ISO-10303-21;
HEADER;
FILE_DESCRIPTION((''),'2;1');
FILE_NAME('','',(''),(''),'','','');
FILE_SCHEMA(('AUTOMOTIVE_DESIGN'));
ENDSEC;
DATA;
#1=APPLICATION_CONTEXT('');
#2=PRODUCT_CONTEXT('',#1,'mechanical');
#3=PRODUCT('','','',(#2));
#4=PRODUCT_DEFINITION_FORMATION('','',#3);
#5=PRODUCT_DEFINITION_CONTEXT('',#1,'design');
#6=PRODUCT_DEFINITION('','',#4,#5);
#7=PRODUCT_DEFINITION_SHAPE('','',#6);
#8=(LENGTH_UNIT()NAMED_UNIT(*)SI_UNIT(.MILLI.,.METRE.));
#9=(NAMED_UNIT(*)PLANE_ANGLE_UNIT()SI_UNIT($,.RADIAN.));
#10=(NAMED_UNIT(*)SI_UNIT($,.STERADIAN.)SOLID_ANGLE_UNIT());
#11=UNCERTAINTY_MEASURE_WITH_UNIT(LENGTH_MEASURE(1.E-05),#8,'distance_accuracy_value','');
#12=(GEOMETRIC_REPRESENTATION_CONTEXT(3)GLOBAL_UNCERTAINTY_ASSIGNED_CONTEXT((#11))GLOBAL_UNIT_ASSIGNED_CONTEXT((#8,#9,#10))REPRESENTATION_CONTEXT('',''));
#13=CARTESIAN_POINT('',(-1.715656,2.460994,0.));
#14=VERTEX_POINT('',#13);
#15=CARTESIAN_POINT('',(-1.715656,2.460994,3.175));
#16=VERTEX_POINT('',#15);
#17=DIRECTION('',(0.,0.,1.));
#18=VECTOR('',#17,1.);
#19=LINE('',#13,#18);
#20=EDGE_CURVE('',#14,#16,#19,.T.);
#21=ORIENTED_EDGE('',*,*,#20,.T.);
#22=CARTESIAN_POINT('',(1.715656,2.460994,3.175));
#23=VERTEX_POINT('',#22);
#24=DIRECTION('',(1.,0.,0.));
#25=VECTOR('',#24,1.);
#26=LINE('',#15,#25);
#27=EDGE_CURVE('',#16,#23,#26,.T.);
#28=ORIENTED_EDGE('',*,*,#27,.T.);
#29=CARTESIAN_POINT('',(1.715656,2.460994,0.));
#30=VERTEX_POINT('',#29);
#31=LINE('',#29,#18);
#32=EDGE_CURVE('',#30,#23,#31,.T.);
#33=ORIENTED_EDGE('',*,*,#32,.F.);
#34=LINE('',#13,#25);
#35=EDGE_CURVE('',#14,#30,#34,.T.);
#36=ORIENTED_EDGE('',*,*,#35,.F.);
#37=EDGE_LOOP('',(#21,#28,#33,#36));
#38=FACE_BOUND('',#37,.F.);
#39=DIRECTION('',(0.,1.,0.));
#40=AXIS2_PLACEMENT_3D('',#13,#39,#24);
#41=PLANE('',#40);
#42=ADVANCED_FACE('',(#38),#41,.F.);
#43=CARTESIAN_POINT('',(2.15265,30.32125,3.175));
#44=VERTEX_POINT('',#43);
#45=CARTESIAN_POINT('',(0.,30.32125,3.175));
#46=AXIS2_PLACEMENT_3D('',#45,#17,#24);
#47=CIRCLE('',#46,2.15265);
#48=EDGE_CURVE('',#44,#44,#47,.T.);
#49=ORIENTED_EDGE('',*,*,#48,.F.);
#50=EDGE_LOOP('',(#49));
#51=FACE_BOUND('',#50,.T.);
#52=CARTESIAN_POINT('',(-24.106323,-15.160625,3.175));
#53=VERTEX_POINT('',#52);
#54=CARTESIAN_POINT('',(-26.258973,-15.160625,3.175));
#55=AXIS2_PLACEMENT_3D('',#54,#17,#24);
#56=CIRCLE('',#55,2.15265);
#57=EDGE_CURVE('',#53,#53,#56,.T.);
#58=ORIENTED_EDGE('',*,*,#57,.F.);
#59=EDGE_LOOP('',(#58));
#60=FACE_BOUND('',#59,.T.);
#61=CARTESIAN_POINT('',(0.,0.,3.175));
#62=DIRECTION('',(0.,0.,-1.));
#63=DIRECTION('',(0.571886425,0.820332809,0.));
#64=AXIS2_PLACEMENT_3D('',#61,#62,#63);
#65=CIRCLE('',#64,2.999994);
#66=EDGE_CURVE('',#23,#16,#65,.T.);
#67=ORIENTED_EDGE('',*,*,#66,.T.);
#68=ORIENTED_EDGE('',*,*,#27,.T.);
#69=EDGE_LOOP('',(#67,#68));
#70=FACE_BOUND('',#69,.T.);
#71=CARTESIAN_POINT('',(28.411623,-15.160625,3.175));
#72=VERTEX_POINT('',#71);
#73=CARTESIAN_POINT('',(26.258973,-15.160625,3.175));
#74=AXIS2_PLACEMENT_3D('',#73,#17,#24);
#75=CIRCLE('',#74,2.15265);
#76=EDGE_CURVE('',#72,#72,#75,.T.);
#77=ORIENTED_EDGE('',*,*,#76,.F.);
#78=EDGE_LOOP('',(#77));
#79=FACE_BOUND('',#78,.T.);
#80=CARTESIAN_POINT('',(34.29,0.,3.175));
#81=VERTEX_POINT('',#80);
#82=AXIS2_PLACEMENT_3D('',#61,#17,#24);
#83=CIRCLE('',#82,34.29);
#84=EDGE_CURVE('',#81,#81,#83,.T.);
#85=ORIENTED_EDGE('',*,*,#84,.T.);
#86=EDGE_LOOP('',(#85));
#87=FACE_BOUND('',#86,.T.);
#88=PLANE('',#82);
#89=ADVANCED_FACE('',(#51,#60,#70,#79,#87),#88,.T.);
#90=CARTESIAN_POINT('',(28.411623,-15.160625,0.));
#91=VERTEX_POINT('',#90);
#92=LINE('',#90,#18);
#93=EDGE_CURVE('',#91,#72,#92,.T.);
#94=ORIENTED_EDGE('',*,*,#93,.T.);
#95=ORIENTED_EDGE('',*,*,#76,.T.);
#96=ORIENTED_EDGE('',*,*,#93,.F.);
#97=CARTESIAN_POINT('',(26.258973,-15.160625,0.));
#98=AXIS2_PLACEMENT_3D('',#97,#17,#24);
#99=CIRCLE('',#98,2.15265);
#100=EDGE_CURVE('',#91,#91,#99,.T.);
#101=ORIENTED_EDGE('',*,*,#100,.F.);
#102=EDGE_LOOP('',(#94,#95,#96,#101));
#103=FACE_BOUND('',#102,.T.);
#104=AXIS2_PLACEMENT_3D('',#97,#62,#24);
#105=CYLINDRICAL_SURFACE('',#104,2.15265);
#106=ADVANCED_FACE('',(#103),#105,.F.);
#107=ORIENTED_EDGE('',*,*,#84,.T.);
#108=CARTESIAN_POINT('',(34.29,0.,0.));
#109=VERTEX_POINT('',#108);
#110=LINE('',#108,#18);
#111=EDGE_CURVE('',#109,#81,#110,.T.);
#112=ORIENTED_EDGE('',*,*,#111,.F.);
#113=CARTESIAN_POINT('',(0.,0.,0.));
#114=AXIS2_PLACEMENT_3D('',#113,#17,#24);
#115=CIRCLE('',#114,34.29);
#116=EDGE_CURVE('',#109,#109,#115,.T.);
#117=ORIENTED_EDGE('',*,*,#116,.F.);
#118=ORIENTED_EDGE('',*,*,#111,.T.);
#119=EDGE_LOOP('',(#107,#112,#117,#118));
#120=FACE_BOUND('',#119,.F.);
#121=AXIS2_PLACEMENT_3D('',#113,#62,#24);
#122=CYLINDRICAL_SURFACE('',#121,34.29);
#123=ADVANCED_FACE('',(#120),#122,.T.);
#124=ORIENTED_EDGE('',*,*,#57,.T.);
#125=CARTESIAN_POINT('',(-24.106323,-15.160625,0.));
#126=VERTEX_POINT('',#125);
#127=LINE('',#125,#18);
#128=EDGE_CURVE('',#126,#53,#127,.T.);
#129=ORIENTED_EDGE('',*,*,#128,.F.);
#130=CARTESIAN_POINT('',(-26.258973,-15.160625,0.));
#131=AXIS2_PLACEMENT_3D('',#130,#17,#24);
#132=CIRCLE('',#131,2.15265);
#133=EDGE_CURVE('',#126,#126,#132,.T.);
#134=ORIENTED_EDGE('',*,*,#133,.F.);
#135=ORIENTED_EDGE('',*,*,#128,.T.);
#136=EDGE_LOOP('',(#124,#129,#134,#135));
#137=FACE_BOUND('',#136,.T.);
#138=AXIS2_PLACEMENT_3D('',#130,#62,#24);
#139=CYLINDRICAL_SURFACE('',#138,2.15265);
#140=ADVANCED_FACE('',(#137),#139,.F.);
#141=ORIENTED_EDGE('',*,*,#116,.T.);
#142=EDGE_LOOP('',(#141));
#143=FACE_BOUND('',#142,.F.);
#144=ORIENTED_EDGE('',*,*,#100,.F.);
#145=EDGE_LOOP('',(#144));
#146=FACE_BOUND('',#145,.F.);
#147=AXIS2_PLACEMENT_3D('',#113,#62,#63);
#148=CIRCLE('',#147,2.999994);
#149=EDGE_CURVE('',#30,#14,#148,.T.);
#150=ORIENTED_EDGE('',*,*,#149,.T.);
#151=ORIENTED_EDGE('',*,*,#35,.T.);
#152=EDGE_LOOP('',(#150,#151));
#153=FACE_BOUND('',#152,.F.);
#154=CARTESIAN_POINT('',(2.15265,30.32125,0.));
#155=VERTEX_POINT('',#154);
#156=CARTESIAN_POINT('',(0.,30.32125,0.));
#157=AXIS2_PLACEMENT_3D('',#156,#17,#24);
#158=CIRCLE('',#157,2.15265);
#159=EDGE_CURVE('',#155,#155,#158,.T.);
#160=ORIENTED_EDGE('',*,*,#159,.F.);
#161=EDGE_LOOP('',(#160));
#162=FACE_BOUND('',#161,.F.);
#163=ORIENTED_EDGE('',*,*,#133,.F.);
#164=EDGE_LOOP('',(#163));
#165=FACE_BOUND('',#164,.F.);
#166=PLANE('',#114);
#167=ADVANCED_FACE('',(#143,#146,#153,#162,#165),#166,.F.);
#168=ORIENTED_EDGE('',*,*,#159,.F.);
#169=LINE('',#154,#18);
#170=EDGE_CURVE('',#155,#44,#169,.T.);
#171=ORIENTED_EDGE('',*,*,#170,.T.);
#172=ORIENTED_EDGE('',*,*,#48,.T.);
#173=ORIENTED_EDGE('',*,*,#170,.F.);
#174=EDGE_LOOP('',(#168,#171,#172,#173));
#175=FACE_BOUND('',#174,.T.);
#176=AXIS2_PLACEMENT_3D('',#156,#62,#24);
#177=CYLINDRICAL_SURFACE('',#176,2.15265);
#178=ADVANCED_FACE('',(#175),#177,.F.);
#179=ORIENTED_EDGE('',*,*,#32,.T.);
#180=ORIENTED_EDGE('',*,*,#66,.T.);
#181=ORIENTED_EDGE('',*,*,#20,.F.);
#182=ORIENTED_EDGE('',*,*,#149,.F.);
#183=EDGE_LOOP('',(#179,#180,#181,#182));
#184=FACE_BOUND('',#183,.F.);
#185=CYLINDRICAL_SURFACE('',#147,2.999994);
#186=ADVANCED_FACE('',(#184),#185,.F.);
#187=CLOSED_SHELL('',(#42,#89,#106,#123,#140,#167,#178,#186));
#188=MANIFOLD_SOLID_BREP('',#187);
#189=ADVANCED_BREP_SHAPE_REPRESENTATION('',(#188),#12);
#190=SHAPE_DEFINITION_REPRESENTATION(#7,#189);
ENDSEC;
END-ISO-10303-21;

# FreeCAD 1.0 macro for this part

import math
import FreeCAD as App
import Part
import Sketcher
from FreeCAD import Vector
Q = App.Units.Quantity

doc = App.newDocument("Part")
body = doc.addObject("PartDesign::Body", "Body")

# Sketch on XY plane
sketch1 = body.newObject("Sketcher::SketchObject", "Sketch")
sketch1.AttachmentSupport = (doc.getObject("XY_Plane"), [""])
sketch1.MapMode = "FlatFace"
sketch1.addGeometry([
    Part.Circle(Vector(0, 0, 0), Vector(0, 0, 1), 34.3),  # 0
    Part.Circle(Vector(-26.3, -15.2, 0), Vector(0, 0, 1), 2.2),  # 1
    Part.Circle(Vector(26.3, -15.2, 0), Vector(0, 0, 1), 2.2),  # 2
    Part.LineSegment(Vector(-1.7, 2.5, 0), Vector(1.7, 2.5, 0)),  # 3
    Part.ArcOfCircle(Part.Circle(Vector(0, 0, 0), Vector(0, 0, 1), 3), math.radians(125), math.radians(415)),  # 4
    Part.Circle(Vector(0, 30.3, 0), Vector(0, 0, 1), 2.2),  # 5
], False)
sketch1.addConstraint([
    Sketcher.Constraint("Coincident", 3, 1, 4, 1),
    Sketcher.Constraint("Coincident", 4, 2, 3, 2),
    Sketcher.Constraint("Horizontal", 3),
    Sketcher.Constraint("Coincident", 0, 3, -1, 1),
    Sketcher.Constraint("Coincident", 4, 3, -1, 1),
    Sketcher.Constraint("Equal", 1, 2),
    Sketcher.Constraint("Equal", 2, 5),
    Sketcher.Constraint("Symmetric", 1, 3, 2, 3, -2),
    Sketcher.Constraint("PointOnObject", 5, 3, -2),
    Sketcher.Constraint("Diameter", 0, Q("2.7 in")),
    Sketcher.Constraint("Diameter", 1, Q("0.1695 in")),
    Sketcher.Constraint("Radius", 4, Q("2.999994 mm")),
    Sketcher.Constraint("DistanceX", 3, 1, 3, 2, Q("3.431312 mm")),
    Sketcher.Constraint("DistanceY", -1, 1, 5, 3, Q("30.32125 mm")),
    Sketcher.Constraint("DistanceY", 1, 3, 3, 1, Q("17.621619 mm")),
    Sketcher.Constraint("DistanceX", 3, 1, 2, 3, Q("27.974629 mm")),
])
pad1 = body.newObject("PartDesign::Pad", "Pad")
pad1.Profile = sketch1
pad1.Length = Q("0.125 in")

doc.recompute()
